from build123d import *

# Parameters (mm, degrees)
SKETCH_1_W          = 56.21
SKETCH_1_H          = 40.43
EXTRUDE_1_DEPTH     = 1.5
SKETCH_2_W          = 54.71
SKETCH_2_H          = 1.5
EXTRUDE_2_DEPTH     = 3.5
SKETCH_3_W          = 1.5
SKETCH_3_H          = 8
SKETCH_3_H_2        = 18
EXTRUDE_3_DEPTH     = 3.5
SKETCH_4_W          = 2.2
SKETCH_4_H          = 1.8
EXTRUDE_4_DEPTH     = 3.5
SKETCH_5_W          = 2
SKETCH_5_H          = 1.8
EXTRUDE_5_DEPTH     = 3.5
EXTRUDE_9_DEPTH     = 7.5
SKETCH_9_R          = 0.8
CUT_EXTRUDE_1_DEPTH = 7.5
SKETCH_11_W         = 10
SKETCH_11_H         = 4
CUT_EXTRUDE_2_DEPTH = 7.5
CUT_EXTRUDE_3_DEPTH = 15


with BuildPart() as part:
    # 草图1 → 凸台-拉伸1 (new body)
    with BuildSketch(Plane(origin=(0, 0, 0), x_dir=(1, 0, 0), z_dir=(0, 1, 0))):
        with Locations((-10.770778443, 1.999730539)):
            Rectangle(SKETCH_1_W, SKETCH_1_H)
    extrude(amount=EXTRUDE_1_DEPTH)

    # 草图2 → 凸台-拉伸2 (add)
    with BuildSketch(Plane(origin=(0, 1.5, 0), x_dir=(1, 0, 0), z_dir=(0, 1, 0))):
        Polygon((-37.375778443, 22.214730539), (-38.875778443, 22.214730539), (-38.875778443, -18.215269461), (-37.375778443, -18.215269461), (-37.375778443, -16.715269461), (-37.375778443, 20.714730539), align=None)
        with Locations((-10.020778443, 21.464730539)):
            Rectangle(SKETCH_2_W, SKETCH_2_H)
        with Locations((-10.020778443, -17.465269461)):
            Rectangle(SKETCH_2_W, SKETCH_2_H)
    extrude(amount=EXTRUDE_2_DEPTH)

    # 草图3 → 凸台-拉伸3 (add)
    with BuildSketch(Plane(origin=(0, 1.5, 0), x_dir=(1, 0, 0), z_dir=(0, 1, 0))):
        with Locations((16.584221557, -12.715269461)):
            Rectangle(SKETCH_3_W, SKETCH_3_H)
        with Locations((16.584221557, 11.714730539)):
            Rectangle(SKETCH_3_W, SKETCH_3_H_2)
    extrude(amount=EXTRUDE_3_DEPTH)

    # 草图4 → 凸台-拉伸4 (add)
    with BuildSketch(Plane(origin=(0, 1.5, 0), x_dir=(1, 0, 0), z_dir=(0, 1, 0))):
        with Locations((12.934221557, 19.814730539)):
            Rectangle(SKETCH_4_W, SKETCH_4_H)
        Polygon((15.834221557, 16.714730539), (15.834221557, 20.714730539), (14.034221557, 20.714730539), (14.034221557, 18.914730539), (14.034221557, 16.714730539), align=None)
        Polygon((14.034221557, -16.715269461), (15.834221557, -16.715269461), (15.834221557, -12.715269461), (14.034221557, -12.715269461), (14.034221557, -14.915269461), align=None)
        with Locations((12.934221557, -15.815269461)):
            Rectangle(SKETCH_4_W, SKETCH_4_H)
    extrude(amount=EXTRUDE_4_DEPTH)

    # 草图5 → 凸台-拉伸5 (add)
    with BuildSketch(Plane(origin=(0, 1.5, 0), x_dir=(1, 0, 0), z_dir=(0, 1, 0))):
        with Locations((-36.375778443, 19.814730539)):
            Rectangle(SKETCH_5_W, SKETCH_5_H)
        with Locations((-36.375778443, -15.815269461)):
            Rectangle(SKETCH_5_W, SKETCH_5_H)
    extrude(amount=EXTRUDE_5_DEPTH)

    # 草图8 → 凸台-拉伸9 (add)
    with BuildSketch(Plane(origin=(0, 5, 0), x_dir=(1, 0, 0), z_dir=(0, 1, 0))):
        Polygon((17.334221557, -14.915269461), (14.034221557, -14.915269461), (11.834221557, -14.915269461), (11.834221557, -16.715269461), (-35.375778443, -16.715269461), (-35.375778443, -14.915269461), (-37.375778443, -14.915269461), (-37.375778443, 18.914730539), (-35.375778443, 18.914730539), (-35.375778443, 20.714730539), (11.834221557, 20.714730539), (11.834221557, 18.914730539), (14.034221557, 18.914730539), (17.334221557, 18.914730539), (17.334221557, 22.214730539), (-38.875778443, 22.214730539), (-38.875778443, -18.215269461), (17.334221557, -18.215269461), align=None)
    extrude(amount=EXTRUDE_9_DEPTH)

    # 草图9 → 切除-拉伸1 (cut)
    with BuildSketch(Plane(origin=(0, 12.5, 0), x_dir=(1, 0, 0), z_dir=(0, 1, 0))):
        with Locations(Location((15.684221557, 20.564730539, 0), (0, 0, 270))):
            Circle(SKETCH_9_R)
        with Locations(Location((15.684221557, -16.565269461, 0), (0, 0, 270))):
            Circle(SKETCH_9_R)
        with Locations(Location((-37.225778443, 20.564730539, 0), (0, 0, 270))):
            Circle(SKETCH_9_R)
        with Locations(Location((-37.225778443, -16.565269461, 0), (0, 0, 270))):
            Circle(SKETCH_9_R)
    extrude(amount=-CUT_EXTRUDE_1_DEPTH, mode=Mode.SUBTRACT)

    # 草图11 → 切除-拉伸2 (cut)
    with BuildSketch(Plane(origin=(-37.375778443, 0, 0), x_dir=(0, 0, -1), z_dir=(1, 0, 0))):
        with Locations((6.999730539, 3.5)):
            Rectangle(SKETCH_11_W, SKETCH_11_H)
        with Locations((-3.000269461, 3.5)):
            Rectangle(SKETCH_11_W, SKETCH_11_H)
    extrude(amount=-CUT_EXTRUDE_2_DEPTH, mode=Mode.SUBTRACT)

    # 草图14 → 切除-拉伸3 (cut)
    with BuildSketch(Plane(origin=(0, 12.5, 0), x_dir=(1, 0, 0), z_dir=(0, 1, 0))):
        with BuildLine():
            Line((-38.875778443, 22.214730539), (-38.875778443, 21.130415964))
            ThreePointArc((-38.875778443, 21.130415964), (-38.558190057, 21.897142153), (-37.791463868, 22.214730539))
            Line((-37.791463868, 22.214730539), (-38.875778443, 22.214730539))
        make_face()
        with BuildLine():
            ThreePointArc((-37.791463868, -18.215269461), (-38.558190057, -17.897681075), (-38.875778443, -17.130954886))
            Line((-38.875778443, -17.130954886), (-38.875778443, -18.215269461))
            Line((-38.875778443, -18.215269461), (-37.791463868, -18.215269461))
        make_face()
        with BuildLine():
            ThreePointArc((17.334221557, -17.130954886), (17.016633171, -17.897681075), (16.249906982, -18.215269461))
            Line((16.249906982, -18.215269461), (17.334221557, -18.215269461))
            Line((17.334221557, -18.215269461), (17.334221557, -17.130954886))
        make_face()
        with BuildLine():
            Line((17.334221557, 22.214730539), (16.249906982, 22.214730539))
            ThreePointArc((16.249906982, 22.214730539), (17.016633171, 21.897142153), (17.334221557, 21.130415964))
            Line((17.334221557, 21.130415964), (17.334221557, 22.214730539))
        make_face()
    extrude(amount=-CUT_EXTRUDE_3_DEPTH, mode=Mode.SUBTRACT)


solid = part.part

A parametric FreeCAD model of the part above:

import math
import FreeCAD as App
import Part
import Sketcher
Q = App.Units.Quantity


def add_polygon(sketch, points):
    """Adds a closed chain of lines whose ends are joined by coincident constraints."""
    first, n = sketch.GeometryCount, len(points)
    for a, b in zip(points, points[1:] + points[:1]):
        sketch.addGeometry(Part.LineSegment(App.Vector(*a, 0), App.Vector(*b, 0)), False)
    for i in range(n):
        sketch.addConstraint(Sketcher.Constraint("Coincident", first + i, 2, first + (i + 1) % n, 1))

doc = App.newDocument("Part")
body = doc.addObject("PartDesign::Body", "Body")

# Sketch on XZ plane
sketch1 = doc.addObject("Sketcher::SketchObject", "Sketch")
body.addObject(sketch1)
sketch1.AttachmentSupport = (doc.XZ_Plane, [""])
sketch1.MapMode = "FlatFace"
add_polygon(sketch1, [(-39, -22), (-39, 18), (17, 18), (17, -22)])  # lines 0-3
sketch1.addConstraint([
    Sketcher.Constraint("Vertical", 0),
    Sketcher.Constraint("Horizontal", 1),
    Sketcher.Constraint("Vertical", 2),
    Sketcher.Constraint("Horizontal", 3),
    Sketcher.Constraint("DistanceX", 1, 1, 1, 2, Q("56.21 mm")),
    Sketcher.Constraint("DistanceY", 0, 1, 0, 2, Q("40.43 mm")),
    Sketcher.Constraint("DistanceX", 0, 2, -1, 1, Q("38.875778 mm")),
    Sketcher.Constraint("DistanceY", -1, 1, 0, 2, Q("18.215269 mm")),
])
pad1 = doc.addObject("PartDesign::Pad", "Pad")
body.addObject(pad1)
pad1.Profile = sketch1
pad1.Length = 1.5
pad1.Reversed = True

# Sketch on XZ plane
sketch2 = doc.addObject("Sketcher::SketchObject", "Sketch001")
body.addObject(sketch2)
sketch2.AttachmentSupport = (doc.XZ_Plane, [""])
sketch2.MapMode = "FlatFace"
sketch2.AttachmentOffset = App.Placement(App.Vector(0, 0, -1.5), App.Rotation())
add_polygon(sketch2, [(-38.9, -22.2), (-38.9, 18.2), (17.3, 18.2), (17.3, 16.7), (-37.4, 16.7), (-37.4, -20.7), (17.3, -20.7), (17.3, -22.2)])  # lines 0-7
sketch2.addConstraint([
    Sketcher.Constraint("Vertical", 0),
    Sketcher.Constraint("Horizontal", 1),
    Sketcher.Constraint("Vertical", 2),
    Sketcher.Constraint("Horizontal", 3),
    Sketcher.Constraint("Vertical", 4),
    Sketcher.Constraint("Horizontal", 5),
    Sketcher.Constraint("Vertical", 6),
    Sketcher.Constraint("Horizontal", 7),
    Sketcher.Constraint("Vertical", 2, 2, 5, 2),
    Sketcher.Constraint("Equal", 2, 6),
    Sketcher.Constraint("DistanceY", 2, 2, 2, 1, Q("1.5 mm")),
    Sketcher.Constraint("DistanceX", 1, 1, 1, 2, Q("56.21 mm")),
    Sketcher.Constraint("DistanceX", 3, 2, 3, 1, Q("54.71 mm")),
    Sketcher.Constraint("DistanceY", 0, 1, 0, 2, Q("40.43 mm")),
    Sketcher.Constraint("DistanceX", 0, 2, -1, 1, Q("38.875778 mm")),
    Sketcher.Constraint("DistanceY", -1, 1, 0, 2, Q("18.215269 mm")),
])
pad2 = doc.addObject("PartDesign::Pad", "Pad001")
body.addObject(pad2)
pad2.Profile = sketch2
pad2.Length = 3.5
pad2.Reversed = True

# Sketch on XZ plane
sketch3 = doc.addObject("Sketcher::SketchObject", "Sketch002")
body.addObject(sketch3)
sketch3.AttachmentSupport = (doc.XZ_Plane, [""])
sketch3.MapMode = "FlatFace"
sketch3.AttachmentOffset = App.Placement(App.Vector(0, 0, -1.5), App.Rotation())
add_polygon(sketch3, [(15.8, 8.7), (15.8, 16.7), (17.3, 16.7), (17.3, 8.7)])  # lines 0-3
add_polygon(sketch3, [(15.8, -20.7), (15.8, -2.7), (17.3, -2.7), (17.3, -20.7)])  # lines 4-7
sketch3.addConstraint([
    Sketcher.Constraint("Vertical", 0),
    Sketcher.Constraint("Horizontal", 1),
    Sketcher.Constraint("Vertical", 2),
    Sketcher.Constraint("Horizontal", 3),
    Sketcher.Constraint("Vertical", 4),
    Sketcher.Constraint("Horizontal", 5),
    Sketcher.Constraint("Vertical", 6),
    Sketcher.Constraint("Horizontal", 7),
    Sketcher.Constraint("Vertical", 3, 2, 4, 2),
    Sketcher.Constraint("Vertical", 2, 2, 5, 2),
    Sketcher.Constraint("DistanceY", 0, 1, 0, 2, Q("8 mm")),
    Sketcher.Constraint("DistanceY", 4, 1, 4, 2, Q("18 mm")),
    Sketcher.Constraint("DistanceX", 1, 1, 1, 2, Q("1.5 mm")),
    Sketcher.Constraint("DistanceY", 4, 2, 3, 2, Q("11.43 mm")),
    Sketcher.Constraint("DistanceX", -1, 1, 0, 2, Q("15.834222 mm")),
    Sketcher.Constraint("DistanceY", -1, 1, 0, 2, Q("16.715269 mm")),
])
pad3 = doc.addObject("PartDesign::Pad", "Pad002")
body.addObject(pad3)
pad3.Profile = sketch3
pad3.Length = 3.5
pad3.Reversed = True

# Sketch on XZ plane
sketch4 = doc.addObject("Sketcher::SketchObject", "Sketch003")
body.addObject(sketch4)
sketch4.AttachmentSupport = (doc.XZ_Plane, [""])
sketch4.MapMode = "FlatFace"
sketch4.AttachmentOffset = App.Placement(App.Vector(0, 0, -1.5), App.Rotation())
add_polygon(sketch4, [(11.8, -20.7), (11.8, -18.9), (14, -18.9), (14, -16.7), (15.8, -16.7), (15.8, -20.7)])  # lines 0-5
add_polygon(sketch4, [(15.8, 16.7), (15.8, 12.7), (14, 12.7), (14, 14.9), (11.8, 14.9), (11.8, 16.7)])  # lines 6-11
sketch4.addConstraint([
    Sketcher.Constraint("Vertical", 0),
    Sketcher.Constraint("Horizontal", 1),
    Sketcher.Constraint("Vertical", 2),
    Sketcher.Constraint("Horizontal", 3),
    Sketcher.Constraint("Vertical", 4),
    Sketcher.Constraint("Horizontal", 5),
    Sketcher.Constraint("Vertical", 6),
    Sketcher.Constraint("Horizontal", 7),
    Sketcher.Constraint("Vertical", 8),
    Sketcher.Constraint("Horizontal", 9),
    Sketcher.Constraint("Vertical", 10),
    Sketcher.Constraint("Horizontal", 11),
    Sketcher.Constraint("Vertical", 4, 2, 6, 2),
    Sketcher.Constraint("Vertical", 2, 2, 7, 2),
    Sketcher.Constraint("Vertical", 5, 2, 9, 2),
    Sketcher.Constraint("Equal", 7, 0),
    Sketcher.Constraint("Equal", 9, 2),
    Sketcher.Constraint("Equal", 4, 6),
    Sketcher.Constraint("Equal", 2, 8),
    Sketcher.Constraint("DistanceX", 5, 2, 5, 1, Q("4 mm")),
    Sketcher.Constraint("DistanceX", 1, 1, 1, 2, Q("2.2 mm")),
    Sketcher.Constraint("DistanceY", 3, 2, 6, 2, Q("29.43 mm")),
    Sketcher.Constraint("DistanceX", -1, 1, 0, 2, Q("11.834222 mm")),
    Sketcher.Constraint("DistanceY", 0, 2, -1, 1, Q("18.914731 mm")),
])
pad4 = doc.addObject("PartDesign::Pad", "Pad003")
body.addObject(pad4)
pad4.Profile = sketch4
pad4.Length = 3.5
pad4.Reversed = True

# Sketch on XZ plane
sketch5 = doc.addObject("Sketcher::SketchObject", "Sketch004")
body.addObject(sketch5)
sketch5.AttachmentSupport = (doc.XZ_Plane, [""])
sketch5.MapMode = "FlatFace"
sketch5.AttachmentOffset = App.Placement(App.Vector(0, 0, -1.5), App.Rotation())
add_polygon(sketch5, [(-37.4, -20.7), (-37.4, -18.9), (-35.4, -18.9), (-35.4, -20.7)])  # lines 0-3
add_polygon(sketch5, [(-37.4, 14.9), (-37.4, 16.7), (-35.4, 16.7), (-35.4, 14.9)])  # lines 4-7
sketch5.addConstraint([
    Sketcher.Constraint("Vertical", 0),
    Sketcher.Constraint("Horizontal", 1),
    Sketcher.Constraint("Vertical", 2),
    Sketcher.Constraint("Horizontal", 3),
    Sketcher.Constraint("Vertical", 4),
    Sketcher.Constraint("Horizontal", 5),
    Sketcher.Constraint("Vertical", 6),
    Sketcher.Constraint("Horizontal", 7),
    Sketcher.Constraint("Vertical", 3, 2, 4, 2),
    Sketcher.Constraint("Vertical", 2, 2, 5, 2),
    Sketcher.Constraint("Equal", 2, 4),
    Sketcher.Constraint("DistanceX", 1, 1, 1, 2, Q("2 mm")),
    Sketcher.Constraint("DistanceY", 0, 1, 0, 2, Q("1.8 mm")),
    Sketcher.Constraint("DistanceY", 0, 2, 4, 2, Q("35.63 mm")),
    Sketcher.Constraint("DistanceX", 0, 2, -1, 1, Q("37.375778 mm")),
    Sketcher.Constraint("DistanceY", 0, 2, -1, 1, Q("18.914731 mm")),
])
pad5 = doc.addObject("PartDesign::Pad", "Pad004")
body.addObject(pad5)
pad5.Profile = sketch5
pad5.Length = 3.5
pad5.Reversed = True

# Sketch on XZ plane
sketch6 = doc.addObject("Sketcher::SketchObject", "Sketch005")
body.addObject(sketch6)
sketch6.AttachmentSupport = (doc.XZ_Plane, [""])
sketch6.MapMode = "FlatFace"
sketch6.AttachmentOffset = App.Placement(App.Vector(0, 0, -5), App.Rotation())
add_polygon(sketch6, [(17.3, 14.9), (11.8, 14.9), (11.8, 16.7), (-35.4, 16.7), (-35.4, 14.9), (-37.4, 14.9), (-37.4, -18.9), (-35.4, -18.9), (-35.4, -20.7), (11.8, -20.7), (11.8, -18.9), (17.3, -18.9), (17.3, -22.2), (-38.9, -22.2), (-38.9, 18.2), (17.3, 18.2)])  # lines 0-15
sketch6.addConstraint([
    Sketcher.Constraint("Horizontal", 0),
    Sketcher.Constraint("Vertical", 1),
    Sketcher.Constraint("Horizontal", 2),
    Sketcher.Constraint("Vertical", 3),
    Sketcher.Constraint("Horizontal", 4),
    Sketcher.Constraint("Vertical", 5),
    Sketcher.Constraint("Horizontal", 6),
    Sketcher.Constraint("Vertical", 7),
    Sketcher.Constraint("Horizontal", 8),
    Sketcher.Constraint("Vertical", 9),
    Sketcher.Constraint("Horizontal", 10),
    Sketcher.Constraint("Vertical", 11),
    Sketcher.Constraint("Horizontal", 12),
    Sketcher.Constraint("Vertical", 13),
    Sketcher.Constraint("Horizontal", 14),
    Sketcher.Constraint("Vertical", 15),
    Sketcher.Constraint("Horizontal", 0, 2, 3, 2),
    Sketcher.Constraint("Horizontal", 6, 2, 9, 2),
    Sketcher.Constraint("Vertical", 3, 2, 6, 2),
    Sketcher.Constraint("Vertical", 1, 2, 8, 2),
    Sketcher.Constraint("Vertical", 11, 2, 14, 2),
    Sketcher.Constraint("Equal", 3, 7),
    Sketcher.Constraint("Equal", 11, 15),
    Sketcher.Constraint("DistanceX", 4, 2, 4, 1, Q("2 mm")),
    Sketcher.Constraint("DistanceX", 0, 2, 0, 1, Q("5.5 mm")),
    Sketcher.Constraint("DistanceY", 1, 1, 1, 2, Q("1.8 mm")),
    Sketcher.Constraint("DistanceY", 11, 2, 11, 1, Q("3.3 mm")),
    Sketcher.Constraint("DistanceX", 2, 2, 2, 1, Q("47.21 mm")),
    Sketcher.Constraint("DistanceX", 12, 2, 12, 1, Q("56.21 mm")),
    Sketcher.Constraint("DistanceY", 5, 2, 5, 1, Q("33.83 mm")),
    Sketcher.Constraint("DistanceX", -1, 1, 0, 2, Q("11.834222 mm")),
    Sketcher.Constraint("DistanceY", -1, 1, 0, 2, Q("14.915269 mm")),
])
pad6 = doc.addObject("PartDesign::Pad", "Pad005")
body.addObject(pad6)
pad6.Profile = sketch6
pad6.Length = 7.5
pad6.Reversed = True

# Sketch on XZ plane
sketch7 = doc.addObject("Sketcher::SketchObject", "Sketch006")
body.addObject(sketch7)
sketch7.AttachmentSupport = (doc.XZ_Plane, [""])
sketch7.MapMode = "FlatFace"
sketch7.AttachmentOffset = App.Placement(App.Vector(0, 0, -12.5), App.Rotation())
sketch7.addGeometry([
    Part.Circle(App.Vector(15.7, -20.6, 0), App.Vector(0, 0, 1), 0.8),
    Part.Circle(App.Vector(15.7, 16.6, 0), App.Vector(0, 0, 1), 0.8),
    Part.Circle(App.Vector(-37.2, -20.6, 0), App.Vector(0, 0, 1), 0.8),
    Part.Circle(App.Vector(-37.2, 16.6, 0), App.Vector(0, 0, 1), 0.8),
], False)
sketch7.addConstraint([
    Sketcher.Constraint("Equal", 0, 1),
    Sketcher.Constraint("Equal", 1, 2),
    Sketcher.Constraint("Equal", 2, 3),
    Sketcher.Constraint("Horizontal", 0, 3, 2, 3),
    Sketcher.Constraint("Horizontal", 1, 3, 3, 3),
    Sketcher.Constraint("Vertical", 0, 3, 1, 3),
    Sketcher.Constraint("Vertical", 2, 3, 3, 3),
    Sketcher.Constraint("Diameter", 0, Q("1.6 mm")),
    Sketcher.Constraint("DistanceY", 0, 3, 1, 3, Q("37.13 mm")),
    Sketcher.Constraint("DistanceX", 2, 3, 0, 3, Q("52.91 mm")),
    Sketcher.Constraint("DistanceX", -1, 1, 0, 3, Q("15.684222 mm")),
    Sketcher.Constraint("DistanceY", 0, 3, -1, 1, Q("20.564731 mm")),
])
pocket1 = doc.addObject("PartDesign::Pocket", "Pocket")
body.addObject(pocket1)
pocket1.Profile = sketch7
pocket1.Length = 7.5
pocket1.Reversed = True

# Sketch on YZ plane
sketch8 = doc.addObject("Sketcher::SketchObject", "Sketch007")
body.addObject(sketch8)
sketch8.AttachmentSupport = (doc.YZ_Plane, [""])
sketch8.MapMode = "FlatFace"
sketch8.AttachmentOffset = App.Placement(App.Vector(0, 0, -37.375778), App.Rotation())
add_polygon(sketch8, [(1.5, -12), (5.5, -12), (5.5, 8), (1.5, 8)])  # lines 0-3
sketch8.addConstraint([
    Sketcher.Constraint("Horizontal", 0),
    Sketcher.Constraint("Vertical", 1),
    Sketcher.Constraint("Horizontal", 2),
    Sketcher.Constraint("Vertical", 3),
    Sketcher.Constraint("DistanceX", 0, 1, 0, 2, Q("4 mm")),
    Sketcher.Constraint("DistanceY", 1, 1, 1, 2, Q("20 mm")),
    Sketcher.Constraint("DistanceX", -1, 1, 0, 2, Q("5.5 mm")),
    Sketcher.Constraint("DistanceY", 0, 2, -1, 1, Q("11.999731 mm")),
])
pocket2 = doc.addObject("PartDesign::Pocket", "Pocket001")
body.addObject(pocket2)
pocket2.Profile = sketch8
pocket2.Length = 7.5

# Sketch on XZ plane
sketch9 = doc.addObject("Sketcher::SketchObject", "Sketch008")
body.addObject(sketch9)
sketch9.AttachmentSupport = (doc.XZ_Plane, [""])
sketch9.MapMode = "FlatFace"
sketch9.AttachmentOffset = App.Placement(App.Vector(0, 0, -12.5), App.Rotation())
sketch9.addGeometry([
    Part.LineSegment(App.Vector(-38.9, -22.2, 0), App.Vector(-38.9, -21.1, 0)),  # 0
    Part.ArcOfCircle(Part.Circle(App.Vector(-37.8, -21.1, 0), App.Vector(0, 0, 1), 1.1), math.radians(180), math.radians(270)),  # 1
    Part.LineSegment(App.Vector(-37.8, -22.2, 0), App.Vector(-38.9, -22.2, 0)),  # 2
    Part.ArcOfCircle(Part.Circle(App.Vector(-37.8, 17.1, 0), App.Vector(0, 0, 1), 1.1), math.radians(90), math.radians(180)),  # 3
    Part.LineSegment(App.Vector(-38.9, 17.1, 0), App.Vector(-38.9, 18.2, 0)),  # 4
    Part.LineSegment(App.Vector(-38.9, 18.2, 0), App.Vector(-37.8, 18.2, 0)),  # 5
    Part.ArcOfCircle(Part.Circle(App.Vector(16.2, 17.1, 0), App.Vector(0, 0, 1), 1.1), math.radians(0), math.radians(90)),  # 6
    Part.LineSegment(App.Vector(16.2, 18.2, 0), App.Vector(17.3, 18.2, 0)),  # 7
    Part.LineSegment(App.Vector(17.3, 18.2, 0), App.Vector(17.3, 17.1, 0)),  # 8
    Part.LineSegment(App.Vector(17.3, -22.2, 0), App.Vector(16.2, -22.2, 0)),  # 9
    Part.ArcOfCircle(Part.Circle(App.Vector(16.2, -21.1, 0), App.Vector(0, 0, 1), 1.1), math.radians(-90), math.radians(0)),  # 10
    Part.LineSegment(App.Vector(17.3, -21.1, 0), App.Vector(17.3, -22.2, 0)),  # 11
], False)
sketch9.addConstraint([
    Sketcher.Constraint("Tangent", 0, 2, 1, 1),
    Sketcher.Constraint("Tangent", 1, 2, 2, 1),
    Sketcher.Constraint("Coincident", 2, 2, 0, 1),
    Sketcher.Constraint("Tangent", 3, 2, 4, 1),
    Sketcher.Constraint("Coincident", 4, 2, 5, 1),
    Sketcher.Constraint("Tangent", 5, 2, 3, 1),
    Sketcher.Constraint("Tangent", 6, 2, 7, 1),
    Sketcher.Constraint("Coincident", 7, 2, 8, 1),
    Sketcher.Constraint("Tangent", 8, 2, 6, 1),
    Sketcher.Constraint("Tangent", 9, 2, 10, 1),
    Sketcher.Constraint("Tangent", 10, 2, 11, 1),
    Sketcher.Constraint("Coincident", 11, 2, 9, 1),
    Sketcher.Constraint("Vertical", 0),
    Sketcher.Constraint("Horizontal", 2),
    Sketcher.Constraint("Vertical", 4),
    Sketcher.Constraint("Horizontal", 5),
    Sketcher.Constraint("Horizontal", 7),
    Sketcher.Constraint("Vertical", 8),
    Sketcher.Constraint("Horizontal", 9),
    Sketcher.Constraint("Vertical", 11),
    Sketcher.Constraint("Equal", 1, 3),
    Sketcher.Constraint("Equal", 3, 6),
    Sketcher.Constraint("Equal", 6, 10),
    Sketcher.Constraint("Horizontal", 3, 3, 6, 3),
    Sketcher.Constraint("Horizontal", 1, 3, 10, 3),
    Sketcher.Constraint("Vertical", 1, 3, 3, 3),
    Sketcher.Constraint("Vertical", 6, 3, 10, 3),
    Sketcher.Constraint("DistanceY", 2, 2, 4, 2, Q("40.43 mm")),
    Sketcher.Constraint("Radius", 1, Q("1.084315 mm")),
    Sketcher.Constraint("DistanceX", 0, 2, -1, 1, Q("38.875778 mm")),
    Sketcher.Constraint("DistanceY", 1, 2, -1, 1, Q("22.214731 mm")),
    Sketcher.Constraint("DistanceX", -1, 1, 7, 2, Q("17.334222 mm")),
])
pocket3 = doc.addObject("PartDesign::Pocket", "Pocket002")
body.addObject(pocket3)
pocket3.Profile = sketch9
pocket3.Length = 15
pocket3.Reversed = True

doc.recompute()
